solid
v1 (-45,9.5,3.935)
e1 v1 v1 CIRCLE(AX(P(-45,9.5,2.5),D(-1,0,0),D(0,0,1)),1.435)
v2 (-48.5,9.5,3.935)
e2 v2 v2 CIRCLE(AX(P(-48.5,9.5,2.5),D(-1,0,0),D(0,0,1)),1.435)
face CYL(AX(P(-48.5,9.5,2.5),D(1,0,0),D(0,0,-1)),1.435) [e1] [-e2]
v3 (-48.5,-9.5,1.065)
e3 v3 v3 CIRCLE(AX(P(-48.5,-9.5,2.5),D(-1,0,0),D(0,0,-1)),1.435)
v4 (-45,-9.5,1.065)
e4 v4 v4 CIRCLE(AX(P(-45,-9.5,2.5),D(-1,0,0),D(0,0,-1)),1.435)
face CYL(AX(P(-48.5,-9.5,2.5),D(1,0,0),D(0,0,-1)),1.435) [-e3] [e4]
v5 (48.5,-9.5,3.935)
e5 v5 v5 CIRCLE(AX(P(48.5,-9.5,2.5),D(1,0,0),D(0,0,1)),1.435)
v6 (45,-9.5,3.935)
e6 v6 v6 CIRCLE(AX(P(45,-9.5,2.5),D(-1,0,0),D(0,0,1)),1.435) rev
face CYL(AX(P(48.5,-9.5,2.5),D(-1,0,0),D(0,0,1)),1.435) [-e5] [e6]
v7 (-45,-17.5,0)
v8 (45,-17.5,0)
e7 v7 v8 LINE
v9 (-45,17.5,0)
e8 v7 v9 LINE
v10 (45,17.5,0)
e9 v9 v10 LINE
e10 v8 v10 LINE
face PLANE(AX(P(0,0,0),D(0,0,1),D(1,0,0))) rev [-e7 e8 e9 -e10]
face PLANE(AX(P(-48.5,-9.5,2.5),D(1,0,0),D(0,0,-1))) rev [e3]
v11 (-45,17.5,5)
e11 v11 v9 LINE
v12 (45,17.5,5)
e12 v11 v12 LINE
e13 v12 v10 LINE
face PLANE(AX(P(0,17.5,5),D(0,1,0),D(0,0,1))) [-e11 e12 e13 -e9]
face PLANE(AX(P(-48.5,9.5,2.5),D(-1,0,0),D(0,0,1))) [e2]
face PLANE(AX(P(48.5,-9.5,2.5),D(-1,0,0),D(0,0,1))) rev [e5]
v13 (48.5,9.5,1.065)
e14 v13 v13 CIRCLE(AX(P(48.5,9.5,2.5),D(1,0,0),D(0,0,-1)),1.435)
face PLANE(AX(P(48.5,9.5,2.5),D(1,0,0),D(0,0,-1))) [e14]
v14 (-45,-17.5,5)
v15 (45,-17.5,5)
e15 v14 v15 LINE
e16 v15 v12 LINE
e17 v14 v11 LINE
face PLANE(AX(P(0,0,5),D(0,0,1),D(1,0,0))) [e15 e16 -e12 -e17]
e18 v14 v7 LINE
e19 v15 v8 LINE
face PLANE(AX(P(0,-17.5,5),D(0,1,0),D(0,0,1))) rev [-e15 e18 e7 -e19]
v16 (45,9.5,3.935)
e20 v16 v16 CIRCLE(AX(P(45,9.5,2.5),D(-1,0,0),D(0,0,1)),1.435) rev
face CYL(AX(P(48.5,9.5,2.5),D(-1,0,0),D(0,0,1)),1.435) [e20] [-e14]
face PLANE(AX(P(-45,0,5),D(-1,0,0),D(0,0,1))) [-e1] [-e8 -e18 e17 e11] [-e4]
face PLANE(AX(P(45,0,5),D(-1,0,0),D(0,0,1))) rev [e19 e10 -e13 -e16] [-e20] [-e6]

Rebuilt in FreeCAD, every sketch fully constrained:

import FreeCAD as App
import Part
import Sketcher

V = App.Vector
Q = App.Units.Quantity


def add_polygon(sketch, points):
    """Adds a closed chain of lines whose ends are joined by coincident constraints."""
    first, n = sketch.GeometryCount, len(points)
    for a, b in zip(points, points[1:] + points[:1]):
        sketch.addGeometry(Part.LineSegment(App.Vector(*a, 0), App.Vector(*b, 0)), False)
    for i in range(n):
        sketch.addConstraint(Sketcher.Constraint("Coincident", first + i, 2, first + (i + 1) % n, 1))

doc = App.newDocument("Part")
body = doc.addObject("PartDesign::Body", "Body")

sketch1 = doc.addObject("Sketcher::SketchObject", "Sketch")
body.addObject(sketch1)
sketch1.AttachmentSupport = (doc.XY_Plane, [""])
sketch1.MapMode = "FlatFace"
add_polygon(sketch1, [(-45, 18), (-45, -18), (45, -18), (45, 18)])
sketch1.addConstraint([
    Sketcher.Constraint("Vertical", 0),
    Sketcher.Constraint("Horizontal", 1),
    Sketcher.Constraint("Vertical", 2),
    Sketcher.Constraint("Horizontal", 3),
    Sketcher.Constraint("Symmetric", 0, 2, 2, 2, -1, 1),
    Sketcher.Constraint("DistanceX", 1, 1, 1, 2, Q("90 mm")),
    Sketcher.Constraint("DistanceY", 0, 2, 0, 1, Q("35 mm")),
])
pad1 = doc.addObject("PartDesign::Pad", "Pad")
body.addObject(pad1)
pad1.Profile = sketch1
pad1.Length = 5

sketch2 = doc.addObject("Sketcher::SketchObject", "Sketch001")
body.addObject(sketch2)
sketch2.AttachmentSupport = (doc.YZ_Plane, [""])
sketch2.MapMode = "FlatFace"
sketch2.AttachmentOffset = App.Placement(V(0, 0, 45), App.Rotation())
sketch2.addGeometry([
    Part.Circle(V(9.5, 2.5, 0), V(0, 0, 1), 1.4),
    Part.Circle(V(-9.5, 2.5, 0), V(0, 0, 1), 1.4),
], False)
sketch2.addConstraint([
    Sketcher.Constraint("Equal", 0, 1),
    Sketcher.Constraint("Symmetric", 0, 3, 1, 3, -2),
    Sketcher.Constraint("Diameter", 0, Q("2.87 mm")),
    Sketcher.Constraint("DistanceX", 1, 3, 0, 3, Q("19 mm")),
    Sketcher.Constraint("DistanceY", -1, 1, 0, 3, Q("2.5 mm")),
])
pad2 = doc.addObject("PartDesign::Pad", "Pad001")
body.addObject(pad2)
pad2.Profile = sketch2
pad2.Length = 3.5

sketch3 = doc.addObject("Sketcher::SketchObject", "Sketch002")
body.addObject(sketch3)
sketch3.AttachmentSupport = (doc.YZ_Plane, [""])
sketch3.MapMode = "FlatFace"
sketch3.AttachmentOffset = App.Placement(V(0, 0, -48.5), App.Rotation())
sketch3.addGeometry([
    Part.Circle(V(9.5, 2.5, 0), V(0, 0, 1), 1.4),
    Part.Circle(V(-9.5, 2.5, 0), V(0, 0, 1), 1.4),
], False)
sketch3.addConstraint([
    Sketcher.Constraint("Equal", 0, 1),
    Sketcher.Constraint("Symmetric", 0, 3, 1, 3, -2),
    Sketcher.Constraint("Diameter", 0, Q("2.87 mm")),
    Sketcher.Constraint("DistanceX", 1, 3, 0, 3, Q("19 mm")),
    Sketcher.Constraint("DistanceY", -1, 1, 0, 3, Q("2.5 mm")),
])
pad3 = doc.addObject("PartDesign::Pad", "Pad002")
body.addObject(pad3)
pad3.Profile = sketch3
pad3.Length = 3.5

doc.recompute()
